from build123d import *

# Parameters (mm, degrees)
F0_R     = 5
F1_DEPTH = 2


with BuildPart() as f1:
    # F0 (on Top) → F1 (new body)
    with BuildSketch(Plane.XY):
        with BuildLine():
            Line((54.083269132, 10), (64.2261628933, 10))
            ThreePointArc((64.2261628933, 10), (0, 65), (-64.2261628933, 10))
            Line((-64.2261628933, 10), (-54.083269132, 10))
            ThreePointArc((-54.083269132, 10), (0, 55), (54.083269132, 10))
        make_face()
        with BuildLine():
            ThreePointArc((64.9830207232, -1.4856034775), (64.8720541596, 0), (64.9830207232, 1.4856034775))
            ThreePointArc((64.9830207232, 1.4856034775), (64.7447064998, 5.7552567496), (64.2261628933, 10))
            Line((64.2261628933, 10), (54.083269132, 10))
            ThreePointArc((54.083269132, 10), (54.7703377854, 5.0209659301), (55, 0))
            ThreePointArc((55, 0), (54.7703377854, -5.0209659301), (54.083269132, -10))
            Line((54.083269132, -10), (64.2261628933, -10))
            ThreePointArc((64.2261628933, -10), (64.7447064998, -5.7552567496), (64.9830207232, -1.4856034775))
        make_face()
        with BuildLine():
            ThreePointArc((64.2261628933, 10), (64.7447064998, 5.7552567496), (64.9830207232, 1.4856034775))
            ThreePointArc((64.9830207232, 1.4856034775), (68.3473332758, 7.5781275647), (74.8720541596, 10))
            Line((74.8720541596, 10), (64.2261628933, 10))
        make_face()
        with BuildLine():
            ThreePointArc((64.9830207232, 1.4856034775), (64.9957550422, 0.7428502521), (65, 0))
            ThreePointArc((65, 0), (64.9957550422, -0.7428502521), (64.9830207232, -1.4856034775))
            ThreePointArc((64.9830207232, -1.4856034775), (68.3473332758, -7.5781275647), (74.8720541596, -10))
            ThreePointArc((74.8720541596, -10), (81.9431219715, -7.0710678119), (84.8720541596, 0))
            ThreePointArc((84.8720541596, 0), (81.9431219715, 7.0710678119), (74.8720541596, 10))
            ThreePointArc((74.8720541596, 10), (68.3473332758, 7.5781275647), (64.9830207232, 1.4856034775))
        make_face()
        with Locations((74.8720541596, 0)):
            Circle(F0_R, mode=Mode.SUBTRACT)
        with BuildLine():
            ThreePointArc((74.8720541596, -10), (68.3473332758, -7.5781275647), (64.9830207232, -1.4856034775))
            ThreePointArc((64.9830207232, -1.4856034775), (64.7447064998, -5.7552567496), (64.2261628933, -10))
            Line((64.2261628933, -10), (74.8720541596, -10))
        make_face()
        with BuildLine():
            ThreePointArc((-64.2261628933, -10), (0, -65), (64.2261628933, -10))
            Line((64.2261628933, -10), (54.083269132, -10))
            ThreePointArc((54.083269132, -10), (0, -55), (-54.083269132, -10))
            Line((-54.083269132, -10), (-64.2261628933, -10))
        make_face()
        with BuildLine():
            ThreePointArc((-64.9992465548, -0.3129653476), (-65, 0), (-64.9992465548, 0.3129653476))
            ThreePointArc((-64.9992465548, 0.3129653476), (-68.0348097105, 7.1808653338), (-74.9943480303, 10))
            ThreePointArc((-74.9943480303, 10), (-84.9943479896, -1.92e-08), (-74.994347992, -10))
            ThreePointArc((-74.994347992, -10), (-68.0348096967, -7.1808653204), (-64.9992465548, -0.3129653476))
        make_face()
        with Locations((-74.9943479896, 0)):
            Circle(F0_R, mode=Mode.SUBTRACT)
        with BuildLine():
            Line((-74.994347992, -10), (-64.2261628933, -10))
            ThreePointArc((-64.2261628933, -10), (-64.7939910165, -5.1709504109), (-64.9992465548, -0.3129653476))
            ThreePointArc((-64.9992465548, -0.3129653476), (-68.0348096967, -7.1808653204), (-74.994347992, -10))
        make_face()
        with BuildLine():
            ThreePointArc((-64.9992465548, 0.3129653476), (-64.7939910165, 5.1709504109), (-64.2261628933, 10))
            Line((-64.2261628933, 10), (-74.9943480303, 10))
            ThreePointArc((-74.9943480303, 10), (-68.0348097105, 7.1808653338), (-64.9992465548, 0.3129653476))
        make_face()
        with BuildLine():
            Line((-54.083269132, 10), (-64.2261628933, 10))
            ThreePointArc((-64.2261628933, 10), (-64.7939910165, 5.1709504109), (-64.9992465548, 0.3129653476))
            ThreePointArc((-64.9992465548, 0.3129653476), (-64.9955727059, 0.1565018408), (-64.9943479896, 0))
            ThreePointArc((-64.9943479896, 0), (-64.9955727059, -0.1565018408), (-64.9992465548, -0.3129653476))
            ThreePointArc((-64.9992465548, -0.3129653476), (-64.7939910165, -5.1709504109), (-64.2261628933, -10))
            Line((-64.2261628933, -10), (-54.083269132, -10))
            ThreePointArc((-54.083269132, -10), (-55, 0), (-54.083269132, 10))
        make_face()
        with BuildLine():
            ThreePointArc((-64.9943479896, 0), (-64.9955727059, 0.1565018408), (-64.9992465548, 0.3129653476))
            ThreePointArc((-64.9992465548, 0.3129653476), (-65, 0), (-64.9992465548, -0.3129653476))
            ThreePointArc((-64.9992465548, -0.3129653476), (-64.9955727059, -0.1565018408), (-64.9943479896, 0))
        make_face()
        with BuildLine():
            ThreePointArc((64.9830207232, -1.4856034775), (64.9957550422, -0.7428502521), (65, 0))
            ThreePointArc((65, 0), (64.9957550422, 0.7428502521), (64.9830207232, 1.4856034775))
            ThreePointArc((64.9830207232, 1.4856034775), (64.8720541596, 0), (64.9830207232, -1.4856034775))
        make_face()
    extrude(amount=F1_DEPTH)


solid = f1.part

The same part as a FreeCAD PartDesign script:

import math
import FreeCAD as App
import Part
import Sketcher
from FreeCAD import Vector

doc = App.newDocument("Part")
params = doc.addObject("Spreadsheet::Sheet", "Params")
for row, (alias, value) in enumerate([
    ("sketch1_diameter", "10 mm"),
    ("sketch1_radius", "10 mm"),
    ("sketch1_radius2", "65 mm"),
    ("sketch1_radius3", "55 mm"),
    ("pad1_length", "2 mm"),
], start=1):
    params.set(f"A{row}", alias)
    params.set(f"B{row}", "=" + value)
    params.setAlias(f"B{row}", alias)

body = doc.addObject("PartDesign::Body", "Body")

# Sketch on XY plane
sketch1 = body.newObject("Sketcher::SketchObject", "Sketch")
sketch1.AttachmentSupport = (doc.getObject("XY_Plane"), [""])
sketch1.MapMode = "FlatFace"
sketch1.addGeometry([
    Part.LineSegment(Vector(64, -10, 0), Vector(75, -10, 0)),  # 0
    Part.ArcOfCircle(Part.Circle(Vector(75, 0, 0), Vector(0, 0, 1), 10), math.radians(-90), math.radians(0)),  # 1
    Part.ArcOfCircle(Part.Circle(Vector(75, 0, 0), Vector(0, 0, 1), 10), math.radians(0), math.radians(90)),  # 2
    Part.LineSegment(Vector(75, 10, 0), Vector(64, 10, 0)),  # 3
    Part.ArcOfCircle(Part.Circle(Vector(0, 0, 0), Vector(0, 0, 1), 65), math.radians(9), math.radians(171)),  # 4
    Part.LineSegment(Vector(-64, 10, 0), Vector(-75, 10, 0)),  # 5
    Part.ArcOfCircle(Part.Circle(Vector(-75, 0, 0), Vector(0, 0, 1), 10), math.radians(90), math.radians(270)),  # 6
    Part.LineSegment(Vector(-75, -10, 0), Vector(-64, -10, 0)),  # 7
    Part.ArcOfCircle(Part.Circle(Vector(0, 0, 0), Vector(0, 0, 1), 65), math.radians(-171), math.radians(-9)),  # 8
    Part.ArcOfCircle(Part.Circle(Vector(0, 0, 0), Vector(0, 0, 1), 55), math.radians(10), math.radians(170)),  # 9
    Part.ArcOfCircle(Part.Circle(Vector(0, 0, 0), Vector(0, 0, 1), 55), math.radians(0), math.radians(10.48)),  # 10
    Part.ArcOfCircle(Part.Circle(Vector(0, 0, 0), Vector(0, 0, 1), 55), math.radians(-10.48), math.radians(0)),  # 11
    Part.ArcOfCircle(Part.Circle(Vector(0, 0, 0), Vector(0, 0, 1), 55), math.radians(-170), math.radians(-10)),  # 12
    Part.ArcOfCircle(Part.Circle(Vector(0, 0, 0), Vector(0, 0, 1), 55), math.radians(170), math.radians(190)),  # 13
    Part.Circle(Vector(75, 0, 0), Vector(0, 0, 1), 5),  # 14
    Part.Circle(Vector(-75, 0, 0), Vector(0, 0, 1), 5),  # 15
], False)
sketch1.addConstraint([
    Sketcher.Constraint("Tangent", 0, 2, 1, 1),
    Sketcher.Constraint("Tangent", 1, 2, 2, 1),
    Sketcher.Constraint("Tangent", 2, 2, 3, 1),
    Sketcher.Constraint("Coincident", 3, 2, 4, 1),
    Sketcher.Constraint("Coincident", 4, 2, 5, 1),
    Sketcher.Constraint("Tangent", 5, 2, 6, 1),
    Sketcher.Constraint("Tangent", 6, 2, 7, 1),
    Sketcher.Constraint("Coincident", 7, 2, 8, 1),
    Sketcher.Constraint("Coincident", 8, 2, 0, 1),
    Sketcher.Constraint("Tangent", 9, 1, 10, 2),
    Sketcher.Constraint("Tangent", 10, 1, 11, 2),
    Sketcher.Constraint("Tangent", 11, 1, 12, 2),
    Sketcher.Constraint("Tangent", 12, 1, 13, 2),
    Sketcher.Constraint("Tangent", 13, 1, 9, 2),
    Sketcher.Constraint("Horizontal", 0),
    Sketcher.Constraint("Horizontal", 3),
    Sketcher.Constraint("Horizontal", 5),
    Sketcher.Constraint("Horizontal", 7),
    Sketcher.Constraint("Coincident", 4, 3, -1, 1),
    Sketcher.Constraint("Coincident", 8, 3, -1, 1),
    Sketcher.Constraint("Coincident", 9, 3, -1, 1),
    Sketcher.Constraint("Coincident", 11, 3, -1, 1),
    Sketcher.Constraint("Coincident", 14, 3, 1, 3),
    Sketcher.Constraint("Coincident", 15, 3, 6, 3),
    Sketcher.Constraint("Equal", 1, 2),
    Sketcher.Constraint("Equal", 2, 6),
    Sketcher.Constraint("Equal", 4, 8),
    Sketcher.Constraint("Equal", 14, 15),
    Sketcher.Constraint("PointOnObject", 1, 3, -1),
    Sketcher.Constraint("PointOnObject", 6, 3, -1),
    Sketcher.Constraint("PointOnObject", 1, 2, -1),
    Sketcher.Constraint("PointOnObject", 10, 1, -1),
    Sketcher.Constraint("Horizontal", 5, 2, 9, 1),
    Sketcher.Constraint("Horizontal", 8, 2, 11, 1),
    Sketcher.Constraint("Horizontal", 11, 1, 12, 1),
    Sketcher.Constraint("Horizontal", 9, 1, 13, 1),
    Sketcher.Constraint("Diameter", 14, 10.0),
    Sketcher.Constraint("Radius", 1, 10.0),
    Sketcher.Constraint("Radius", 4, 65.0),
    Sketcher.Constraint("Radius", 9, 55.0),
    Sketcher.Constraint("DistanceX", 0, 1, 0, 2, 10.645891),
    Sketcher.Constraint("DistanceX", 5, 2, 5, 1, 10.768185),
])
sketch1.setExpression("Constraints[36]", "Params.sketch1_diameter")
sketch1.setExpression("Constraints[37]", "Params.sketch1_radius")
sketch1.setExpression("Constraints[38]", "Params.sketch1_radius2")
sketch1.setExpression("Constraints[39]", "Params.sketch1_radius3")
pad1 = body.newObject("PartDesign::Pad", "Pad")
pad1.Profile = sketch1
pad1.setExpression("Length", "Params.pad1_length")

doc.recompute()
